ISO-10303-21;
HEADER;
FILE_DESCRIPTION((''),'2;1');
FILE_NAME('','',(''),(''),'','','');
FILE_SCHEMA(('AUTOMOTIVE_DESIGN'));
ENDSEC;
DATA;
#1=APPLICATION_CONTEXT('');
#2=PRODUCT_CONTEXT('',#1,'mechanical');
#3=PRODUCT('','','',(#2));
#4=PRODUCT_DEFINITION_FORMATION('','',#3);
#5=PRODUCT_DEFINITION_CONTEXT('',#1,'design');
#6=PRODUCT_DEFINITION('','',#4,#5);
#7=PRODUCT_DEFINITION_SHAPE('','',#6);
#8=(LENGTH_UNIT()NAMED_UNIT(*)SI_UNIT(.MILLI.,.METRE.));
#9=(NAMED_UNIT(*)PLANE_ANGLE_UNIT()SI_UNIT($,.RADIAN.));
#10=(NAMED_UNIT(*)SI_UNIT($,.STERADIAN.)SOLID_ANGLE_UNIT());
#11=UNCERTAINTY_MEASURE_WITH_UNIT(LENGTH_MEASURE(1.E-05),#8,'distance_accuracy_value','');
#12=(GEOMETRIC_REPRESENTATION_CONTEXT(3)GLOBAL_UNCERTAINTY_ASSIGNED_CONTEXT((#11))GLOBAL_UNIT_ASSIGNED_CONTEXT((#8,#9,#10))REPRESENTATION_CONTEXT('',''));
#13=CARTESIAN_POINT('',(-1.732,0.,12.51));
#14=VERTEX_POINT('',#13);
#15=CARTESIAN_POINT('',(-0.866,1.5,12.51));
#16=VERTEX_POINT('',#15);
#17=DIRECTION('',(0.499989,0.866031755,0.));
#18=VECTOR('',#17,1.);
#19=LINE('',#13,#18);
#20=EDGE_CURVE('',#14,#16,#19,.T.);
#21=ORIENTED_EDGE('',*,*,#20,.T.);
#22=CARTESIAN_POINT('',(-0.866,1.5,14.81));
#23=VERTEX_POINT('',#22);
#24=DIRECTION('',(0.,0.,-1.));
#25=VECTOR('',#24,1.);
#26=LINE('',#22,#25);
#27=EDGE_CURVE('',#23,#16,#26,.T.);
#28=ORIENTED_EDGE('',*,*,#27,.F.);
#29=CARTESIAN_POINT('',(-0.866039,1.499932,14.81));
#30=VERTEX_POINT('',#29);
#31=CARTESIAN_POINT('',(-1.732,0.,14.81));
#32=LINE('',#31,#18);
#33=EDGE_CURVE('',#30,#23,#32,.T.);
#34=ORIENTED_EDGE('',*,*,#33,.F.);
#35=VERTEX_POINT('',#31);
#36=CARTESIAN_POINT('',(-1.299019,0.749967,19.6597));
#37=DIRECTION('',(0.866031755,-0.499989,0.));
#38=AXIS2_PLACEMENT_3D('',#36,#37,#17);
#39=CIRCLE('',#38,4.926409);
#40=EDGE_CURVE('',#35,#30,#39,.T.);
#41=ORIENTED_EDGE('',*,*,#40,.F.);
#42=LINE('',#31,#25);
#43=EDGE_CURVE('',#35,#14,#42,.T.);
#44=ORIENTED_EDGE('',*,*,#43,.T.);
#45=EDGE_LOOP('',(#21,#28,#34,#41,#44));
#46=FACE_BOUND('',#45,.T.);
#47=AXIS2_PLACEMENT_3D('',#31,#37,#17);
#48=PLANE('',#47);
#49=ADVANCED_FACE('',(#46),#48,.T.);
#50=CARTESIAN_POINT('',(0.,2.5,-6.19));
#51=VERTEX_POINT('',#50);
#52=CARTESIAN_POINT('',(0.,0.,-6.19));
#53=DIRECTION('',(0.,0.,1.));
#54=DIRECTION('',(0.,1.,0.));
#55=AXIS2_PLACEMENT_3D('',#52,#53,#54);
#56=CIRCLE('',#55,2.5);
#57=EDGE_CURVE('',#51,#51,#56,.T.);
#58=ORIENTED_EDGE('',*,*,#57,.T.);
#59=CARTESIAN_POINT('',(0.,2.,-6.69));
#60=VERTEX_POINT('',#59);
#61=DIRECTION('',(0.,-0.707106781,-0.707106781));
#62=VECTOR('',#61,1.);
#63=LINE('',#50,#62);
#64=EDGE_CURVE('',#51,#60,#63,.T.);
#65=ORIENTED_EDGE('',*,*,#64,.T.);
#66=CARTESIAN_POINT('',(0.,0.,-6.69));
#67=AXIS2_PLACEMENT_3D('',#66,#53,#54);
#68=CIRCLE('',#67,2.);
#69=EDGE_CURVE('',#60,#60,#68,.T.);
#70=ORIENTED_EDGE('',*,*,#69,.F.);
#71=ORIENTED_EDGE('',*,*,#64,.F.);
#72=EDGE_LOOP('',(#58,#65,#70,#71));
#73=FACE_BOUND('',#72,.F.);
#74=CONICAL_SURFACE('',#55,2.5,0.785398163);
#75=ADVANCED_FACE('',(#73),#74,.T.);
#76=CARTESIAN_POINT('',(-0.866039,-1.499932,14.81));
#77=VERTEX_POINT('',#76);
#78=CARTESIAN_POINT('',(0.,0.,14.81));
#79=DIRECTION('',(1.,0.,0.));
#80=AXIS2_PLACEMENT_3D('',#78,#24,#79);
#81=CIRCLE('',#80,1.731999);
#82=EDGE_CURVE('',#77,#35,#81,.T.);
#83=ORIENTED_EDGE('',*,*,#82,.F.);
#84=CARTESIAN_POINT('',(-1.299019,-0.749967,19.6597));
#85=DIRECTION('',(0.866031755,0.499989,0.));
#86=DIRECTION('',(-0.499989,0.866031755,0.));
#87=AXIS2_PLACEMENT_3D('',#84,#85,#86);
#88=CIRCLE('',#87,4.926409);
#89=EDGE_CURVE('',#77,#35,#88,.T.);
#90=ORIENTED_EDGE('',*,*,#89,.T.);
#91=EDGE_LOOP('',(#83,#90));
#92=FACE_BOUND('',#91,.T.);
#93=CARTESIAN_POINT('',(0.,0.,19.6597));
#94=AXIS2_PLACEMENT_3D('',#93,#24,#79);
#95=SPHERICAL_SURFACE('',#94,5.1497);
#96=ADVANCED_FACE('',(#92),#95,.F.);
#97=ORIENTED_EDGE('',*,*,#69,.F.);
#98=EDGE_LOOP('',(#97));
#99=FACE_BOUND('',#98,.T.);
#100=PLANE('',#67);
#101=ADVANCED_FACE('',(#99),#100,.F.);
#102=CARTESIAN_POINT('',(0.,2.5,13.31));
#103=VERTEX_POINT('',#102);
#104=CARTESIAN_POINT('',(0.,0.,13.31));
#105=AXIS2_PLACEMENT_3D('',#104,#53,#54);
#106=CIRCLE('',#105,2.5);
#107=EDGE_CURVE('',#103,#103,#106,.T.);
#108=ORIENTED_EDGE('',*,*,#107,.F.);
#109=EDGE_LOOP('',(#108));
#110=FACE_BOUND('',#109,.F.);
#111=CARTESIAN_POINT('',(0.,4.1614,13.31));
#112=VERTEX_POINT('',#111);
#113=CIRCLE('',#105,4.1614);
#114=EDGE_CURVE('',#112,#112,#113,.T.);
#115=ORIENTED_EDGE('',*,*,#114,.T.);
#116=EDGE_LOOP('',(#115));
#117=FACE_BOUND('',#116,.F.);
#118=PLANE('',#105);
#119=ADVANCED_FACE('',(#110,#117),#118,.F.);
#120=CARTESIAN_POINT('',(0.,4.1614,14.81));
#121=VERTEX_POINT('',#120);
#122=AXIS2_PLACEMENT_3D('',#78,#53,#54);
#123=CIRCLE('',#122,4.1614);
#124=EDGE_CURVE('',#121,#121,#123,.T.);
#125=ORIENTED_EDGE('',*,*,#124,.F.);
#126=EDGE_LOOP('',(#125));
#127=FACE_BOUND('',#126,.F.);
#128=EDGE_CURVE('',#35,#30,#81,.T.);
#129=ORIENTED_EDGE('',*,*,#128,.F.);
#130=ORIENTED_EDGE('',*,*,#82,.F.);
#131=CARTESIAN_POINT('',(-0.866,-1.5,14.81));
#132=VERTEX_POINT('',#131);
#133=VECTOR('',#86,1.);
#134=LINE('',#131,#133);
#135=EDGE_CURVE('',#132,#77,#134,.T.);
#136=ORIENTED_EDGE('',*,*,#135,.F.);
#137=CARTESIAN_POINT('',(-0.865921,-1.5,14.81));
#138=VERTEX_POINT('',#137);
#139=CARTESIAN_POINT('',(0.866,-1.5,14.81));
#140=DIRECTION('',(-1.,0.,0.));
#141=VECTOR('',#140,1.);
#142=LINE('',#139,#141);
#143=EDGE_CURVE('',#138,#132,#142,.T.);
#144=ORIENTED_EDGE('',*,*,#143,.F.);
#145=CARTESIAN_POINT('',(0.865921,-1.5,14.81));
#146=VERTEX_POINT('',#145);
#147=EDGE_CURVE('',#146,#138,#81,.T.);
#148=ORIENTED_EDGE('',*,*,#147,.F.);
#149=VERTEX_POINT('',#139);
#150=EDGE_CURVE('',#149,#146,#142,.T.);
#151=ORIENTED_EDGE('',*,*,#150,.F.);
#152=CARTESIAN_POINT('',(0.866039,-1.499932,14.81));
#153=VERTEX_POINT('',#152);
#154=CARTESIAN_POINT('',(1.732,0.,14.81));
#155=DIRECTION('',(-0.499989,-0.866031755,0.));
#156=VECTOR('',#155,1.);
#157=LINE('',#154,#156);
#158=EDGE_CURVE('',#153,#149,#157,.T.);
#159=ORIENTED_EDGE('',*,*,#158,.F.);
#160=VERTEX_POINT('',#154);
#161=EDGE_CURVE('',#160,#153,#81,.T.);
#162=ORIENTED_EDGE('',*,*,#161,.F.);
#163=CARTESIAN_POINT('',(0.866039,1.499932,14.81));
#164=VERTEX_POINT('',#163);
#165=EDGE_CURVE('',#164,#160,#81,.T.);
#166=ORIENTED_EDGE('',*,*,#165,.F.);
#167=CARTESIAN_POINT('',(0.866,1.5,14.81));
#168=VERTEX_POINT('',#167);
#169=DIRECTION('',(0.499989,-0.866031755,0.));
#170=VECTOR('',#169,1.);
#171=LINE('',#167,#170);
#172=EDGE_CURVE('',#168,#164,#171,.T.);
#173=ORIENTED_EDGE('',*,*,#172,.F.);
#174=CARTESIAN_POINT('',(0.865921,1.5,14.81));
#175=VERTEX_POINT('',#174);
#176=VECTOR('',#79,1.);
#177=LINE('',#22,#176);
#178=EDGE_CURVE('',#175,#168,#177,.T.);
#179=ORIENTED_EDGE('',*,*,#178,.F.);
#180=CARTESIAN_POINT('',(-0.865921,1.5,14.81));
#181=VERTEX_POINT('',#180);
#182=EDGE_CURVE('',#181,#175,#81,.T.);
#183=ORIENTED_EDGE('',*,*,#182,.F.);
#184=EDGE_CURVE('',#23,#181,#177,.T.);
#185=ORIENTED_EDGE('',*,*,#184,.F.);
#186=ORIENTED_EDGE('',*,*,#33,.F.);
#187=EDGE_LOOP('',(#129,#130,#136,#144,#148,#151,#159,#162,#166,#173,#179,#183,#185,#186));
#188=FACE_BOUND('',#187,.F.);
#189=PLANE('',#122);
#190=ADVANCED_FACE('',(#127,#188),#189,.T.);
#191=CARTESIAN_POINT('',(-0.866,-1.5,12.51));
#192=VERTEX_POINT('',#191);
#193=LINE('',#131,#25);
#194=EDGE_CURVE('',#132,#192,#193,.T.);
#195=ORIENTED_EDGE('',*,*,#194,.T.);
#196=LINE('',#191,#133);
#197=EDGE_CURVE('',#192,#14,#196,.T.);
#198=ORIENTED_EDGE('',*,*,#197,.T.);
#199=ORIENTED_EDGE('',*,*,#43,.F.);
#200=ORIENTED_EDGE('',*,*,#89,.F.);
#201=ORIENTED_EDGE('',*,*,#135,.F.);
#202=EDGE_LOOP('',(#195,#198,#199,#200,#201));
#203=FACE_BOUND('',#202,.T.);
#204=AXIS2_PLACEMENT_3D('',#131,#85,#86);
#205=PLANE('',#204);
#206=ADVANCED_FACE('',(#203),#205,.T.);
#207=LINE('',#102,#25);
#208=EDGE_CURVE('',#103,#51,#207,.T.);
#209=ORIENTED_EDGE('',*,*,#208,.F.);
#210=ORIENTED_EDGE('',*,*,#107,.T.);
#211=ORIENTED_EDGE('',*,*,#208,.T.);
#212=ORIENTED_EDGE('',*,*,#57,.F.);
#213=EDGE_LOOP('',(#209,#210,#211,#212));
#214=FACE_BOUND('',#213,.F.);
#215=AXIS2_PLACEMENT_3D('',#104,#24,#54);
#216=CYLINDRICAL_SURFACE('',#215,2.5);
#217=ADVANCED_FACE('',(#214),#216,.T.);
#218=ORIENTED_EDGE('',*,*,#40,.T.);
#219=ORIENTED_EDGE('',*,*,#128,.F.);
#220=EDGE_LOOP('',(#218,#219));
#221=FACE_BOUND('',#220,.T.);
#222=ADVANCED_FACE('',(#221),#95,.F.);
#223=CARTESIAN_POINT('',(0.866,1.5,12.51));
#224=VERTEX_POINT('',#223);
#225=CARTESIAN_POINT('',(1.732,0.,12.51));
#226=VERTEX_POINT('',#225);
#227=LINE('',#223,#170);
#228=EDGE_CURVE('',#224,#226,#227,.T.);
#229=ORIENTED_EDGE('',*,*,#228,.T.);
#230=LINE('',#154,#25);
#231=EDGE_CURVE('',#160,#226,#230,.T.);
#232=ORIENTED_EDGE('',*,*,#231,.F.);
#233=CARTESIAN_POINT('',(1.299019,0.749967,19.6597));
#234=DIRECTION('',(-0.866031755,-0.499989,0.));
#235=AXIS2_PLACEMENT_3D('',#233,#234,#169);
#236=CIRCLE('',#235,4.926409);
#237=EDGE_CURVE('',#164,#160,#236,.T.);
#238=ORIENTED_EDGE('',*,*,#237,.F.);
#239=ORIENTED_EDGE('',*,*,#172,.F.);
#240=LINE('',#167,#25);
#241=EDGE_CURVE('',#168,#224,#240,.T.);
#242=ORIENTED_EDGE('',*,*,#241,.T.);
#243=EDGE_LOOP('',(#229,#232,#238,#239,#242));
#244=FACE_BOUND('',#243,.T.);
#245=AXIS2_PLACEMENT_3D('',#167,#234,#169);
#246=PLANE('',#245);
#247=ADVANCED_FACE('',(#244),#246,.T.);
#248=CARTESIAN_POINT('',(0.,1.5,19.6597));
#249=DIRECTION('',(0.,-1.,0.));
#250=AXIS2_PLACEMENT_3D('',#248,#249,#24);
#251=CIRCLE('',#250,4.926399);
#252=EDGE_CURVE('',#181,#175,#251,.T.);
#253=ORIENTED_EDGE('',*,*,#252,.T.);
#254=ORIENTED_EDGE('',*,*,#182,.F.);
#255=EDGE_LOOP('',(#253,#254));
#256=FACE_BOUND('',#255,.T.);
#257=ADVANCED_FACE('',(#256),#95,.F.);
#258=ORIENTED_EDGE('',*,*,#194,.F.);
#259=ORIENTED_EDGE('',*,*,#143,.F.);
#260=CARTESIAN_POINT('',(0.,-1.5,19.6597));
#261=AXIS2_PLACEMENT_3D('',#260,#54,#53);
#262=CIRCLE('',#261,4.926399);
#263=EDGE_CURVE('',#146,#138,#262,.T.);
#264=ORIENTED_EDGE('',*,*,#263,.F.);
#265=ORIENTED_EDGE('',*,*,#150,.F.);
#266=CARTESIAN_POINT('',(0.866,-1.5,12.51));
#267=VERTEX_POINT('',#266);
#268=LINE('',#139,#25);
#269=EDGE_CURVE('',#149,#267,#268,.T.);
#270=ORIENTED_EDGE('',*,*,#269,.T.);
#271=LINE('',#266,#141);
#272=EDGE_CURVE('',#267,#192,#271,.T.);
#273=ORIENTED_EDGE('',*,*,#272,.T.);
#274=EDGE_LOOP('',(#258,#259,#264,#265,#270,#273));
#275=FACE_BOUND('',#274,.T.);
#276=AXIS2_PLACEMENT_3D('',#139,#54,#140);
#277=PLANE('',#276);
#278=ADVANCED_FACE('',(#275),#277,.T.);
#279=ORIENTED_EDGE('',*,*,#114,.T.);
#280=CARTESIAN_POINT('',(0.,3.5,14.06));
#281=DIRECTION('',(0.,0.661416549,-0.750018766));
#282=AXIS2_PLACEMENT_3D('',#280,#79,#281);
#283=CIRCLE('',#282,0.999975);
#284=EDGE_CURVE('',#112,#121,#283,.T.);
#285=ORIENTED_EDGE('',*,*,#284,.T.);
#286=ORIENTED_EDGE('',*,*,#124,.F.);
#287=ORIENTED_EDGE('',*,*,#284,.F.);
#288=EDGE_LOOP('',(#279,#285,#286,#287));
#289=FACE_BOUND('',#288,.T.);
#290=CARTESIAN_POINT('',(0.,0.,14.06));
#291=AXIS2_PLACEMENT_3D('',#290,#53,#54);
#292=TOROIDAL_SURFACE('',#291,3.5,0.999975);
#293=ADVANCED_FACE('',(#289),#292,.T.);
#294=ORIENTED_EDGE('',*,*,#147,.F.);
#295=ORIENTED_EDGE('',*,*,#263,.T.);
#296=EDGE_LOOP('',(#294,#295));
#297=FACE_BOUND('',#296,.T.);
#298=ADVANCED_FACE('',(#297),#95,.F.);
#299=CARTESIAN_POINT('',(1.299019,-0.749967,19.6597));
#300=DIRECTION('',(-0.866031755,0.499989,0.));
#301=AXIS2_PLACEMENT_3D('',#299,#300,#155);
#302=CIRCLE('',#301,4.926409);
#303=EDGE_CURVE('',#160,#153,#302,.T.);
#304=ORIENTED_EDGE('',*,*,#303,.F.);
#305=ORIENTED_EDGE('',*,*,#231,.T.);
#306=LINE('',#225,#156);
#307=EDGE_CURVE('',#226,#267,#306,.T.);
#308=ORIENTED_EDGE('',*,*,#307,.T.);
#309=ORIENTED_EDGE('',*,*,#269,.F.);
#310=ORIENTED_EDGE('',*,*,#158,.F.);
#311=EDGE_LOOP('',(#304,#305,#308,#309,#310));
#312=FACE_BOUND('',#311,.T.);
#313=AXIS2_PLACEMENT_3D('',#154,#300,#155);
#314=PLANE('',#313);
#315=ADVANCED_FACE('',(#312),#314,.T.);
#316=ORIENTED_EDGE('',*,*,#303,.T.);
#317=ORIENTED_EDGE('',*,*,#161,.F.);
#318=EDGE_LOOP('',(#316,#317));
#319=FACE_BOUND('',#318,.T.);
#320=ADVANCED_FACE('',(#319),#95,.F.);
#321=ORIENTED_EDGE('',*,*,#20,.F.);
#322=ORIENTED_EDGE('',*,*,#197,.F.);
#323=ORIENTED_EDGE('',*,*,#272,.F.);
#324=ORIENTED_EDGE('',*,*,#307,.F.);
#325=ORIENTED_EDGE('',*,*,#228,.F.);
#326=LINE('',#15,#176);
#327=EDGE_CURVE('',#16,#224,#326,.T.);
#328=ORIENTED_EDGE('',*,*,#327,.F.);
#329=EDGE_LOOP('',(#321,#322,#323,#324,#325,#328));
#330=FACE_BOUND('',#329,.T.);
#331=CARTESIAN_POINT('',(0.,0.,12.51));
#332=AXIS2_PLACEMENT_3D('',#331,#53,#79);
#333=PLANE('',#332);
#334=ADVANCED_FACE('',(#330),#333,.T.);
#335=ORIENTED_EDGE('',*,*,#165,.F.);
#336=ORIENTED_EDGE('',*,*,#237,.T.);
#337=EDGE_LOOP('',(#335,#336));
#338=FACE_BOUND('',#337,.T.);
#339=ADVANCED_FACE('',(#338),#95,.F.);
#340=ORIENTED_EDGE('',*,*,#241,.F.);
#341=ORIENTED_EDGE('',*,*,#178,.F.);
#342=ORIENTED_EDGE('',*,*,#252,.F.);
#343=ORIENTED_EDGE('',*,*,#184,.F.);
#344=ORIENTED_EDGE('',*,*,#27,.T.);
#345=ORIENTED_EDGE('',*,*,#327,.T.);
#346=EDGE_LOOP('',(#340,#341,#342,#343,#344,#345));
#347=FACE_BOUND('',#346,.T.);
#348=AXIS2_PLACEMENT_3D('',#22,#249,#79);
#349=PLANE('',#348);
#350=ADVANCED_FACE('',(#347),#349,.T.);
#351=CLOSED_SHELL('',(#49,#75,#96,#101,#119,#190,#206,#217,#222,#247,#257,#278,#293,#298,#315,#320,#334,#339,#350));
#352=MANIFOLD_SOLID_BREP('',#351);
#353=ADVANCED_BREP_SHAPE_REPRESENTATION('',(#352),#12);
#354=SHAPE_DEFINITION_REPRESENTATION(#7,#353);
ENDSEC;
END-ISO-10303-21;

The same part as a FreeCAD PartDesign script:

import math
import FreeCAD as App
import Part
import Sketcher

V = App.Vector
Q = App.Units.Quantity

doc = App.newDocument("Part")
body = doc.addObject("PartDesign::Body", "Body")

# Sketch on YZ plane
sketch1 = body.newObject("Sketcher::SketchObject", "Sketch")
sketch1.AttachmentSupport = (doc.getObject("YZ_Plane"), [""])
sketch1.MapMode = "FlatFace"
sketch1.addGeometry([
    Part.LineSegment(V(2.5, -6.2, 0), V(2.5, 13.3, 0)),  # 0
    Part.LineSegment(V(2.5, 13.3, 0), V(4.2, 13.3, 0)),  # 1
    Part.ArcOfCircle(Part.Circle(V(3.5, 14.1, 0), V(0, 0, 1), 1), math.radians(-49), math.radians(49)),  # 2
    Part.LineSegment(V(4.2, 14.8, 0), V(0, 14.8, 0)),  # 3
    Part.LineSegment(V(0, 14.8, 0), V(0, -6.7, 0)),  # 4
    Part.LineSegment(V(0, -6.7, 0), V(2, -6.7, 0)),  # 5
    Part.LineSegment(V(2, -6.7, 0), V(2.5, -6.2, 0)),  # 6
], False)
sketch1.addConstraint([
    Sketcher.Constraint("Coincident", 0, 2, 1, 1),
    Sketcher.Constraint("Coincident", 1, 2, 2, 1),
    Sketcher.Constraint("Coincident", 2, 2, 3, 1),
    Sketcher.Constraint("Coincident", 3, 2, 4, 1),
    Sketcher.Constraint("Coincident", 4, 2, 5, 1),
    Sketcher.Constraint("Coincident", 5, 2, 6, 1),
    Sketcher.Constraint("Coincident", 6, 2, 0, 1),
    Sketcher.Constraint("Vertical", 0),
    Sketcher.Constraint("Horizontal", 1),
    Sketcher.Constraint("Horizontal", 3),
    Sketcher.Constraint("Vertical", 4),
    Sketcher.Constraint("Horizontal", 5),
    Sketcher.Constraint("PointOnObject", 3, 2, -2),
    Sketcher.Constraint("Vertical", 1, 2, 2, 2),
    Sketcher.Constraint("Radius", 2, 1.0),
    Sketcher.Constraint("DistanceX", 5, 2, 0, 2, 0.5),
    Sketcher.Constraint("DistanceY", 5, 2, 6, 2, 0.5),
    Sketcher.Constraint("DistanceX", 5, 1, 5, 2, 2.0),
    Sketcher.Constraint("DistanceY", 0, 1, 0, 2, 19.5),
    Sketcher.Constraint("DistanceY", 4, 2, 4, 1, 21.5),
    Sketcher.Constraint("DistanceX", 0, 2, 2, 3, 1.0),
    Sketcher.Constraint("DistanceY", -1, 1, 2, 3, 14.06),
])
revolution = body.newObject("PartDesign::Revolution", "Revolution")
revolution.Profile = sketch1
revolution.ReferenceAxis = (sketch1, ["V_Axis"])
revolution.Angle = 360

# Sketch on XY plane
sketch2 = body.newObject("Sketcher::SketchObject", "Sketch001")
sketch2.AttachmentSupport = (doc.getObject("XY_Plane"), [""])
sketch2.MapMode = "FlatFace"
sketch2.AttachmentOffset = App.Placement(V(0, 0, 14.81), App.Rotation())
sketch2.addGeometry([
    Part.LineSegment(V(0.9, -1.5, 0), V(1.7, 0, 0)),  # 0
    Part.LineSegment(V(1.7, 0, 0), V(0.9, 1.5, 0)),  # 1
    Part.LineSegment(V(0.9, 1.5, 0), V(-0.9, 1.5, 0)),  # 2
    Part.LineSegment(V(-0.9, 1.5, 0), V(-1.7, 0, 0)),  # 3
    Part.LineSegment(V(-1.7, 0, 0), V(-0.9, -1.5, 0)),  # 4
    Part.LineSegment(V(-0.9, -1.5, 0), V(0.9, -1.5, 0)),  # 5
], False)
sketch2.addConstraint([
    Sketcher.Constraint("Coincident", 0, 2, 1, 1),
    Sketcher.Constraint("Coincident", 1, 2, 2, 1),
    Sketcher.Constraint("Coincident", 2, 2, 3, 1),
    Sketcher.Constraint("Coincident", 3, 2, 4, 1),
    Sketcher.Constraint("Coincident", 4, 2, 5, 1),
    Sketcher.Constraint("Coincident", 5, 2, 0, 1),
    Sketcher.Constraint("Horizontal", 2),
    Sketcher.Constraint("Horizontal", 5),
    Sketcher.Constraint("Symmetric", 0, 2, 3, 2, -1, 1),
    Sketcher.Constraint("Symmetric", 1, 2, 4, 2, -1, 1),
    Sketcher.Constraint("PointOnObject", 0, 2, -1),
    Sketcher.Constraint("Parallel", 0, 3),
    Sketcher.Constraint("Vertical", 2, 2, 4, 2),
    Sketcher.Constraint("Angle", 0, Q("60.0007 deg")),
    Sketcher.Constraint("DistanceX", 3, 2, 0, 2, 3.464),
    Sketcher.Constraint("DistanceY", 4, 2, 2, 2, 3.0),
])
pocket1 = body.newObject("PartDesign::Pocket", "Pocket")
pocket1.Profile = sketch2
pocket1.Length = 2.3

# Sketch on XZ plane
sketch3 = body.newObject("Sketcher::SketchObject", "Sketch002")
sketch3.AttachmentSupport = (doc.getObject("XZ_Plane"), [""])
sketch3.MapMode = "FlatFace"
sketch3.addGeometry([
    Part.LineSegment(V(0, 15, 0), V(0, 25, 0)),
    Part.ArcOfCircle(Part.Circle(V(0, 20, 0), V(0, 0, 1), 5), math.radians(-90), math.radians(90)),
], False)
sketch3.addConstraint([
    Sketcher.Constraint("Coincident", 0, 1, 1, 1),
    Sketcher.Constraint("Coincident", 1, 2, 0, 2),
    Sketcher.Constraint("Vertical", 0),
    Sketcher.Constraint("PointOnObject", 1, 3, -2),
    Sketcher.Constraint("PointOnObject", 0, 1, -2),
    Sketcher.Constraint("Radius", 1, 5.1497),
    Sketcher.Constraint("DistanceY", -1, 1, 0, 1, 14.51),
])
groove = body.newObject("PartDesign::Groove", "Groove")
groove.Profile = sketch3
groove.ReferenceAxis = (sketch3, ["V_Axis"])
groove.Angle = 360

doc.recompute()
